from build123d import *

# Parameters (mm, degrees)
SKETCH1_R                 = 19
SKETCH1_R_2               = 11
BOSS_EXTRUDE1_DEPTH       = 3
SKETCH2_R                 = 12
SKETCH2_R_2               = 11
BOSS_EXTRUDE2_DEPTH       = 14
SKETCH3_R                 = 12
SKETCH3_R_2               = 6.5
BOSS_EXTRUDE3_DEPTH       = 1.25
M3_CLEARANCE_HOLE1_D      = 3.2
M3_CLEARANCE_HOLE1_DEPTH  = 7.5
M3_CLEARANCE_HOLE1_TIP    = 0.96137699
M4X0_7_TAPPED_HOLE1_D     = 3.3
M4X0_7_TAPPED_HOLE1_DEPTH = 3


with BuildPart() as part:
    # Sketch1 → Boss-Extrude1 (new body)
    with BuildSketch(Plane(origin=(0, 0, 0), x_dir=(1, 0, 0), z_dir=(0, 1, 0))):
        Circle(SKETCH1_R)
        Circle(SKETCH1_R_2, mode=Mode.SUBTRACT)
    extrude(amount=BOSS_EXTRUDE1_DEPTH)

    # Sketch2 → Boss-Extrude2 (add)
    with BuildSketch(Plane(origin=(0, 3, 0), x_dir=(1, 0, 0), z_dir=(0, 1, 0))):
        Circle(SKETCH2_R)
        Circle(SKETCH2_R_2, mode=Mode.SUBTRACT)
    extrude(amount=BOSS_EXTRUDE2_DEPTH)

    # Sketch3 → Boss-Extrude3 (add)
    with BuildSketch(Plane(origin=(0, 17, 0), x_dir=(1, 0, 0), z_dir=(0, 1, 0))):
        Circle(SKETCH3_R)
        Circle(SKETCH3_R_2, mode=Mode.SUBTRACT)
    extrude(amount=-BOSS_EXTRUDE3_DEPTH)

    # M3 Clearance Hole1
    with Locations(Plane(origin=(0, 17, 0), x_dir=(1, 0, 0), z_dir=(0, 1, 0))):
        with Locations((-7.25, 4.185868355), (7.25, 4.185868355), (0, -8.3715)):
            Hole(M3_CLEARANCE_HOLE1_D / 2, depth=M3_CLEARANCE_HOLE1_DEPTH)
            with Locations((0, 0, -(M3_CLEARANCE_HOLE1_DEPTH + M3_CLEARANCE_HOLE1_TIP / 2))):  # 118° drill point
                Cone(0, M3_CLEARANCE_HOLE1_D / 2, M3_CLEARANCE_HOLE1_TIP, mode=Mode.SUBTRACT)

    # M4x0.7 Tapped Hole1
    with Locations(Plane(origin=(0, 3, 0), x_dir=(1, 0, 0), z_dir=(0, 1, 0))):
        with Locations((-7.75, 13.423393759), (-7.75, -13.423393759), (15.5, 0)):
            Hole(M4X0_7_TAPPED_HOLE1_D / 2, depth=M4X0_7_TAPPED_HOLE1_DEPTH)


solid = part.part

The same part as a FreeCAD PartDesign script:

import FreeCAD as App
import Part
import Sketcher
Q = App.Units.Quantity

doc = App.newDocument("Part")
body = doc.addObject("PartDesign::Body", "Body")

# Sketch on XZ plane
sketch1 = doc.addObject("Sketcher::SketchObject", "Sketch")
body.addObject(sketch1)
sketch1.AttachmentSupport = (doc.XZ_Plane, [""])
sketch1.MapMode = "FlatFace"
sketch1.addGeometry(Part.Circle(App.Vector(0, 0, 0), App.Vector(0, 0, 1), 19), False)
sketch1.addGeometry(Part.Circle(App.Vector(0, 0, 0), App.Vector(0, 0, 1), 11), False)
sketch1.addConstraint(Sketcher.Constraint("Coincident", 0, 3, -1, 1))
sketch1.addConstraint(Sketcher.Constraint("Coincident", 1, 3, -1, 1))
sketch1.addConstraint(Sketcher.Constraint("Diameter", 0, Q("38 mm")))
sketch1.addConstraint(Sketcher.Constraint("Diameter", 1, Q("22 mm")))
pad1 = doc.addObject("PartDesign::Pad", "Pad")
body.addObject(pad1)
pad1.Profile = sketch1
pad1.Length = 3
pad1.Reversed = True

# Sketch on XZ plane
sketch2 = doc.addObject("Sketcher::SketchObject", "Sketch001")
body.addObject(sketch2)
sketch2.AttachmentSupport = (doc.XZ_Plane, [""])
sketch2.MapMode = "FlatFace"
sketch2.AttachmentOffset = App.Placement(App.Vector(0, 0, -3), App.Rotation())
sketch2.addGeometry(Part.Circle(App.Vector(0, 0, 0), App.Vector(0, 0, 1), 12), False)
sketch2.addGeometry(Part.Circle(App.Vector(0, 0, 0), App.Vector(0, 0, 1), 11), False)
sketch2.addConstraint(Sketcher.Constraint("Coincident", 0, 3, -1, 1))
sketch2.addConstraint(Sketcher.Constraint("Coincident", 1, 3, -1, 1))
sketch2.addConstraint(Sketcher.Constraint("Diameter", 0, Q("24 mm")))
sketch2.addConstraint(Sketcher.Constraint("Diameter", 1, Q("22 mm")))
pad2 = doc.addObject("PartDesign::Pad", "Pad001")
body.addObject(pad2)
pad2.Profile = sketch2
pad2.Length = 14
pad2.Reversed = True

# Sketch on XZ plane
sketch3 = doc.addObject("Sketcher::SketchObject", "Sketch002")
body.addObject(sketch3)
sketch3.AttachmentSupport = (doc.XZ_Plane, [""])
sketch3.MapMode = "FlatFace"
sketch3.AttachmentOffset = App.Placement(App.Vector(0, 0, -17), App.Rotation())
sketch3.addGeometry(Part.Circle(App.Vector(0, 0, 0), App.Vector(0, 0, 1), 12), False)
sketch3.addGeometry(Part.Circle(App.Vector(0, 0, 0), App.Vector(0, 0, 1), 6), False)
sketch3.addConstraint(Sketcher.Constraint("Coincident", 0, 3, -1, 1))
sketch3.addConstraint(Sketcher.Constraint("Coincident", 1, 3, -1, 1))
sketch3.addConstraint(Sketcher.Constraint("Diameter", 0, Q("24 mm")))
sketch3.addConstraint(Sketcher.Constraint("Diameter", 1, Q("13 mm")))
pad3 = doc.addObject("PartDesign::Pad", "Pad002")
body.addObject(pad3)
pad3.Profile = sketch3
pad3.Length = 1.25

# Sketch on XZ plane
sketch4 = doc.addObject("Sketcher::SketchObject", "Sketch003")
body.addObject(sketch4)
sketch4.AttachmentSupport = (doc.XZ_Plane, [""])
sketch4.MapMode = "FlatFace"
sketch4.AttachmentOffset = App.Placement(App.Vector(0, 0, -17), App.Rotation())
sketch4.addGeometry(Part.Circle(App.Vector(-7.2, -4.2, 0), App.Vector(0, 0, 1), 1.6), False)
sketch4.addGeometry(Part.Circle(App.Vector(7.2, -4.2, 0), App.Vector(0, 0, 1), 1.6), False)
sketch4.addGeometry(Part.Circle(App.Vector(0, 8.4, 0), App.Vector(0, 0, 1), 1.6), False)
sketch4.addConstraint(Sketcher.Constraint("Equal", 0, 1))
sketch4.addConstraint(Sketcher.Constraint("Equal", 1, 2))
sketch4.addConstraint(Sketcher.Constraint("Symmetric", 0, 3, 1, 3, -2))
sketch4.addConstraint(Sketcher.Constraint("PointOnObject", 2, 3, -2))
sketch4.addConstraint(Sketcher.Constraint("Diameter", 0, Q("3.2 mm")))
sketch4.addConstraint(Sketcher.Constraint("DistanceX", 0, 3, 1, 3, Q("14.5 mm")))
sketch4.addConstraint(Sketcher.Constraint("DistanceY", -1, 1, 2, 3, Q("8.3715 mm")))
sketch4.addConstraint(Sketcher.Constraint("DistanceY", 0, 3, -1, 1, Q("4.185868 mm")))
doc.recompute()
hole = doc.addObject("PartDesign::Hole", "Hole")
body.addObject(hole)
hole.Profile = sketch4
hole.ThreadType = "None"
hole.Diameter = 3.2
hole.DepthType = "Dimension"
hole.Depth = 7.5
hole.DrillPoint = "Angled"
hole.DrillPointAngle = 118
hole.Reversed = True

# Sketch on XZ plane
sketch5 = doc.addObject("Sketcher::SketchObject", "Sketch004")
body.addObject(sketch5)
sketch5.AttachmentSupport = (doc.XZ_Plane, [""])
sketch5.MapMode = "FlatFace"
sketch5.AttachmentOffset = App.Placement(App.Vector(0, 0, -3), App.Rotation())
sketch5.addGeometry(Part.Circle(App.Vector(-7.8, -13.4, 0), App.Vector(0, 0, 1), 1.6), False)
sketch5.addGeometry(Part.Circle(App.Vector(-7.8, 13.4, 0), App.Vector(0, 0, 1), 1.6), False)
sketch5.addGeometry(Part.Circle(App.Vector(15.5, 0, 0), App.Vector(0, 0, 1), 1.6), False)
sketch5.addConstraint(Sketcher.Constraint("Equal", 0, 1))
sketch5.addConstraint(Sketcher.Constraint("Equal", 1, 2))
sketch5.addConstraint(Sketcher.Constraint("Symmetric", 0, 3, 1, 3, -1))
sketch5.addConstraint(Sketcher.Constraint("PointOnObject", 2, 3, -1))
sketch5.addConstraint(Sketcher.Constraint("Diameter", 0, Q("3.3 mm")))
sketch5.addConstraint(Sketcher.Constraint("DistanceX", -1, 1, 2, 3, Q("15.5 mm")))
sketch5.addConstraint(Sketcher.Constraint("DistanceX", 0, 3, -1, 1, Q("7.75 mm")))
sketch5.addConstraint(Sketcher.Constraint("DistanceY", 0, 3, -1, 1, Q("13.423394 mm")))
doc.recompute()
hole2 = doc.addObject("PartDesign::Hole", "Hole001")
body.addObject(hole2)
hole2.Profile = sketch5
hole2.ThreadType = "None"
hole2.Diameter = 3.3
hole2.DepthType = "Dimension"
hole2.Depth = 3
hole2.DrillPoint = "Flat"
hole2.Reversed = True

doc.recompute()
